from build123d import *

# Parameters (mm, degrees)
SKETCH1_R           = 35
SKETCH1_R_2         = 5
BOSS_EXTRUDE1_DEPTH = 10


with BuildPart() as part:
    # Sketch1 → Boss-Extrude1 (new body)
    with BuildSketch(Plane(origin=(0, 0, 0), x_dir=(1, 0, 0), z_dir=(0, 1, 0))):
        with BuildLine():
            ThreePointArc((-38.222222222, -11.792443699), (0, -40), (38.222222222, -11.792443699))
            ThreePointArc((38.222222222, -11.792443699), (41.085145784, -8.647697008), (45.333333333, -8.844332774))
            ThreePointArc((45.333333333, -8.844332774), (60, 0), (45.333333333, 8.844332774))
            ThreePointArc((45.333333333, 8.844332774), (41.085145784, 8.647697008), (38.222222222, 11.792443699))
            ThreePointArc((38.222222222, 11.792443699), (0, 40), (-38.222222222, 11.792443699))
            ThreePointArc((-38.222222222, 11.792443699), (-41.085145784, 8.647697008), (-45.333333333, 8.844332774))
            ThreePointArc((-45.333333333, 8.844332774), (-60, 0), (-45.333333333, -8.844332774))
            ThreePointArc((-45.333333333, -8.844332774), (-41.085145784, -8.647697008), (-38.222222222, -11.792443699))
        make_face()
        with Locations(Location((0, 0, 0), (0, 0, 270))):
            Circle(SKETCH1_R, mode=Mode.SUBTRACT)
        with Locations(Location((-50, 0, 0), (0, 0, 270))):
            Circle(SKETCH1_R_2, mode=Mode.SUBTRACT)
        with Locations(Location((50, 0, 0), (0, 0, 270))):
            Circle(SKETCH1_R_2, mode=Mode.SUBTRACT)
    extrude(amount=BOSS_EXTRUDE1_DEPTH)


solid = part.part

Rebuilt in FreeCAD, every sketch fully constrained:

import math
import FreeCAD as App
import Part
import Sketcher
Q = App.Units.Quantity

doc = App.newDocument("Part")
body = doc.addObject("PartDesign::Body", "Body")

# Sketch on XZ plane
sketch1 = body.newObject("Sketcher::SketchObject", "Sketch")
sketch1.AttachmentSupport = (doc.getObject("XZ_Plane"), [""])
sketch1.MapMode = "FlatFace"
sketch1.addGeometry(Part.ArcOfCircle(Part.Circle(App.Vector(0, 0, 0), App.Vector(0, 0, 1), 40), math.radians(17), math.radians(163)), False)
sketch1.addGeometry(Part.ArcOfCircle(Part.Circle(App.Vector(43, 13, 0), App.Vector(0, 0, 1), 5), math.radians(-163), math.radians(-62)), False)
sketch1.addGeometry(Part.ArcOfCircle(Part.Circle(App.Vector(50, 0, 0), App.Vector(0, 0, 1), 10), math.radians(-118), math.radians(118)), False)
sketch1.addGeometry(Part.ArcOfCircle(Part.Circle(App.Vector(43, -13, 0), App.Vector(0, 0, 1), 5), math.radians(62), math.radians(163)), False)
sketch1.addGeometry(Part.ArcOfCircle(Part.Circle(App.Vector(0, 0, 0), App.Vector(0, 0, 1), 40), math.radians(-163), math.radians(-17)), False)
sketch1.addGeometry(Part.ArcOfCircle(Part.Circle(App.Vector(-43, -13, 0), App.Vector(0, 0, 1), 5), math.radians(17), math.radians(118)), False)
sketch1.addGeometry(Part.ArcOfCircle(Part.Circle(App.Vector(-50, 0, 0), App.Vector(0, 0, 1), 10), math.radians(62), math.radians(298)), False)
sketch1.addGeometry(Part.ArcOfCircle(Part.Circle(App.Vector(-43, 13, 0), App.Vector(0, 0, 1), 5), math.radians(-118), math.radians(-17)), False)
sketch1.addGeometry(Part.Circle(App.Vector(-50, 0, 0), App.Vector(0, 0, 1), 5), False)
sketch1.addGeometry(Part.Circle(App.Vector(0, 0, 0), App.Vector(0, 0, 1), 35), False)
sketch1.addGeometry(Part.Circle(App.Vector(50, 0, 0), App.Vector(0, 0, 1), 5), False)
sketch1.addConstraint(Sketcher.Constraint("Tangent", 0, 1, 1, 1))
sketch1.addConstraint(Sketcher.Constraint("Tangent", 1, 2, 2, 2))
sketch1.addConstraint(Sketcher.Constraint("Tangent", 2, 1, 3, 1))
sketch1.addConstraint(Sketcher.Constraint("Tangent", 3, 2, 4, 2))
sketch1.addConstraint(Sketcher.Constraint("Tangent", 4, 1, 5, 1))
sketch1.addConstraint(Sketcher.Constraint("Tangent", 5, 2, 6, 2))
sketch1.addConstraint(Sketcher.Constraint("Tangent", 6, 1, 7, 1))
sketch1.addConstraint(Sketcher.Constraint("Tangent", 7, 2, 0, 2))
sketch1.addConstraint(Sketcher.Constraint("Coincident", 0, 3, -1, 1))
sketch1.addConstraint(Sketcher.Constraint("Coincident", 4, 3, -1, 1))
sketch1.addConstraint(Sketcher.Constraint("Coincident", 9, 3, -1, 1))
sketch1.addConstraint(Sketcher.Constraint("Coincident", 8, 3, 6, 3))
sketch1.addConstraint(Sketcher.Constraint("Coincident", 10, 3, 2, 3))
sketch1.addConstraint(Sketcher.Constraint("Equal", 1, 3))
sketch1.addConstraint(Sketcher.Constraint("Equal", 0, 4))
sketch1.addConstraint(Sketcher.Constraint("Equal", 3, 5))
sketch1.addConstraint(Sketcher.Constraint("Equal", 2, 6))
sketch1.addConstraint(Sketcher.Constraint("Equal", 5, 7))
sketch1.addConstraint(Sketcher.Constraint("Equal", 7, 8))
sketch1.addConstraint(Sketcher.Constraint("Equal", 8, 10))
sketch1.addConstraint(Sketcher.Constraint("Symmetric", 2, 3, 6, 3, -1, 1))
sketch1.addConstraint(Sketcher.Constraint("PointOnObject", 2, 3, -1))
sketch1.addConstraint(Sketcher.Constraint("Diameter", 8, Q("10 mm")))
sketch1.addConstraint(Sketcher.Constraint("Diameter", 9, Q("70 mm")))
sketch1.addConstraint(Sketcher.Constraint("Radius", 0, Q("40 mm")))
sketch1.addConstraint(Sketcher.Constraint("Radius", 2, Q("10 mm")))
sketch1.addConstraint(Sketcher.Constraint("DistanceX", -1, 1, 1, 3, Q("43 mm")))
pad1 = body.newObject("PartDesign::Pad", "Pad")
pad1.Profile = sketch1
pad1.Length = 10
pad1.Reversed = True

doc.recompute()
